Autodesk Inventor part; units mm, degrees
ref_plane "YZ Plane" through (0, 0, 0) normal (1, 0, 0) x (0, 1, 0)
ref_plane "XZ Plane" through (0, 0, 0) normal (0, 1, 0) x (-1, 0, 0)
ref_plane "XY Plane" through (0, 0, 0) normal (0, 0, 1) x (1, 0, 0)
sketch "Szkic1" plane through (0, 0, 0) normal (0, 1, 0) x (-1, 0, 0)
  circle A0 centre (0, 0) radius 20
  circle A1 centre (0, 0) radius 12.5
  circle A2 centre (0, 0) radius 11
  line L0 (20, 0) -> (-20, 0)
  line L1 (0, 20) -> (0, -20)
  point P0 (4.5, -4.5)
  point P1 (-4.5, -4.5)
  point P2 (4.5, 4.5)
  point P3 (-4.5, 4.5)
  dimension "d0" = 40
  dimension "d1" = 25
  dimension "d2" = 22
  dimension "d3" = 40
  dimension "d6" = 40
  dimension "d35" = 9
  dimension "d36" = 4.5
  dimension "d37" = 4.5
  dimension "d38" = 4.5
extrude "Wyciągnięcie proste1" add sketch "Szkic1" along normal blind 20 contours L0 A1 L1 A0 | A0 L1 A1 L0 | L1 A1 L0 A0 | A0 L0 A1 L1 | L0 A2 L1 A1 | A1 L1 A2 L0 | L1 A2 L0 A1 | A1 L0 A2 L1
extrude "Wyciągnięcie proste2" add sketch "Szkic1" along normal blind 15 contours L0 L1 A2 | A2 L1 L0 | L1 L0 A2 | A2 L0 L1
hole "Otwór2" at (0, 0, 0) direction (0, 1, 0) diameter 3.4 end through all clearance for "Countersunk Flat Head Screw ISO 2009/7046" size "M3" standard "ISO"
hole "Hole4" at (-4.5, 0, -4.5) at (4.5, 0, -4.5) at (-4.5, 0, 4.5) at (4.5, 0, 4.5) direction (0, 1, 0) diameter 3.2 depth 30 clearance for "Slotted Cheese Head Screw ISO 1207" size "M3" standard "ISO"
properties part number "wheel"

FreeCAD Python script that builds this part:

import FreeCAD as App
import Part
import Sketcher

doc = App.newDocument("Part")
params = doc.addObject("Spreadsheet::Sheet", "Params")
for row, (alias, value) in enumerate([
    ("sketch1_diameter", "40 mm"),
    ("sketch1_diameter2", "22 mm"),
    ("pad1_length", "20 mm"),
    ("sketch2_diameter", "22 mm"),
    ("pad2_length", "15 mm"),
    ("sketch3_diameter", "3.4 mm"),
    ("hole_diameter", "3.4 mm"),
    ("sketch4_diameter", "3.2 mm"),
    ("hole2_diameter", "3.2 mm"),
    ("hole2_depth", "30 mm"),
], start=1):
    params.set(f"A{row}", alias)
    params.set(f"B{row}", "=" + value)
    params.setAlias(f"B{row}", alias)

body = doc.addObject("PartDesign::Body", "Body")

sketch1 = doc.addObject("Sketcher::SketchObject", "Sketch")
body.addObject(sketch1)
sketch1.AttachmentSupport = (doc.XZ_Plane, [""])
sketch1.MapMode = "FlatFace"
sketch1.addGeometry([
    Part.Circle(App.Vector(0, 0, 0), App.Vector(0, 0, 1), 20),
    Part.Circle(App.Vector(0, 0, 0), App.Vector(0, 0, 1), 11),
], False)
sketch1.addConstraint([
    Sketcher.Constraint("Coincident", 0, 3, -1, 1),
    Sketcher.Constraint("Coincident", 1, 3, -1, 1),
    Sketcher.Constraint("Diameter", 0, 40.0),
    Sketcher.Constraint("Diameter", 1, 22.0),
])
sketch1.setExpression("Constraints[2]", "Params.sketch1_diameter")
sketch1.setExpression("Constraints[3]", "Params.sketch1_diameter2")
pad1 = doc.addObject("PartDesign::Pad", "Pad")
body.addObject(pad1)
pad1.Profile = sketch1
pad1.setExpression("Length", "Params.pad1_length")
pad1.Reversed = True

sketch2 = doc.addObject("Sketcher::SketchObject", "Sketch001")
body.addObject(sketch2)
sketch2.AttachmentSupport = (doc.XZ_Plane, [""])
sketch2.MapMode = "FlatFace"
sketch2.addGeometry(Part.Circle(App.Vector(0, 0, 0), App.Vector(0, 0, 1), 11), False)
sketch2.addConstraint([
    Sketcher.Constraint("Coincident", 0, 3, -1, 1),
    Sketcher.Constraint("Diameter", 0, 22.0),
])
sketch2.setExpression("Constraints[1]", "Params.sketch2_diameter")
pad2 = doc.addObject("PartDesign::Pad", "Pad001")
body.addObject(pad2)
pad2.Profile = sketch2
pad2.setExpression("Length", "Params.pad2_length")
pad2.Reversed = True

sketch3 = doc.addObject("Sketcher::SketchObject", "Sketch002")
body.addObject(sketch3)
sketch3.AttachmentSupport = (doc.XZ_Plane, [""])
sketch3.MapMode = "FlatFace"
sketch3.addGeometry(Part.Circle(App.Vector(0, 0, 0), App.Vector(0, 0, 1), 1.7), False)
sketch3.addConstraint([
    Sketcher.Constraint("Coincident", 0, 3, -1, 1),
    Sketcher.Constraint("Diameter", 0, 3.4),
])
sketch3.setExpression("Constraints[1]", "Params.sketch3_diameter")
doc.recompute()
hole = doc.addObject("PartDesign::Hole", "Hole")
body.addObject(hole)
hole.Profile = sketch3
hole.ThreadType = "None"
hole.setExpression("Diameter", "Params.hole_diameter")
hole.DepthType = "ThroughAll"

sketch4 = doc.addObject("Sketcher::SketchObject", "Sketch003")
body.addObject(sketch4)
sketch4.AttachmentSupport = (doc.XZ_Plane, [""])
sketch4.MapMode = "FlatFace"
sketch4.addGeometry([
    Part.Circle(App.Vector(-4.5, -4.5, 0), App.Vector(0, 0, 1), 1.6),
    Part.Circle(App.Vector(4.5, -4.5, 0), App.Vector(0, 0, 1), 1.6),
    Part.Circle(App.Vector(-4.5, 4.5, 0), App.Vector(0, 0, 1), 1.6),
    Part.Circle(App.Vector(4.5, 4.5, 0), App.Vector(0, 0, 1), 1.6),
], False)
sketch4.addConstraint([
    Sketcher.Constraint("Equal", 0, 1),
    Sketcher.Constraint("Equal", 1, 2),
    Sketcher.Constraint("Equal", 2, 3),
    Sketcher.Constraint("Symmetric", 1, 3, 2, 3, -1, 1),
    Sketcher.Constraint("Symmetric", 0, 3, 3, 3, -1, 1),
    Sketcher.Constraint("Symmetric", 0, 3, 1, 3, -2),
    Sketcher.Constraint("Diameter", 0, 3.2),
    Sketcher.Constraint("DistanceX", 0, 3, 1, 3, 9.0),
    Sketcher.Constraint("DistanceY", 0, 3, 2, 3, 9.0),
])
sketch4.setExpression("Constraints[6]", "Params.sketch4_diameter")
doc.recompute()
hole2 = doc.addObject("PartDesign::Hole", "Hole001")
body.addObject(hole2)
hole2.Profile = sketch4
hole2.ThreadType = "None"
hole2.setExpression("Diameter", "Params.hole2_diameter")
hole2.DepthType = "Dimension"
hole2.setExpression("Depth", "Params.hole2_depth")
hole2.DrillPoint = "Flat"

doc.recompute()
